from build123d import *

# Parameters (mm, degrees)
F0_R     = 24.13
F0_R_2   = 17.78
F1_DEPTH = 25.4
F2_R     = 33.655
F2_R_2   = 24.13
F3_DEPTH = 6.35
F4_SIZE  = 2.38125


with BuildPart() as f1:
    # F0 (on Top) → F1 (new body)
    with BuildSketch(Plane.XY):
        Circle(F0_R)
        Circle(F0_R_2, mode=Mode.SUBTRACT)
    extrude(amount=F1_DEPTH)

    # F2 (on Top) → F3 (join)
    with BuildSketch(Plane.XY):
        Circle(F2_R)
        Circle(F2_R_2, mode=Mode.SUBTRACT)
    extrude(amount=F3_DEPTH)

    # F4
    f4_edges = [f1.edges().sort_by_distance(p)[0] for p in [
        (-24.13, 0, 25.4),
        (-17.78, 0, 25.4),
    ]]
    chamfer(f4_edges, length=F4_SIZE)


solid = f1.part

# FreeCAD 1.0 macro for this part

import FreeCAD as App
import Part
import Sketcher
Q = App.Units.Quantity


def edges_at(feature, points):
    """Names of the edges that pass closest to the given points."""
    edges = feature.Shape.Edges
    near = lambda p: min(range(len(edges)), key=lambda i: edges[i].distToShape(Part.Vertex(*p))[0])
    return sorted({f"Edge{near(p) + 1}" for p in points})

doc = App.newDocument("Part")
body = doc.addObject("PartDesign::Body", "Body")

sketch1 = body.newObject("Sketcher::SketchObject", "Sketch")
sketch1.AttachmentSupport = (doc.getObject("XY_Plane"), [""])
sketch1.MapMode = "FlatFace"
sketch1.addGeometry([
    Part.Circle(App.Vector(0, 0, 0), App.Vector(0, 0, 1), 24.13),
    Part.Circle(App.Vector(0, 0, 0), App.Vector(0, 0, 1), 17.78),
], False)
sketch1.addConstraint([
    Sketcher.Constraint("Coincident", 0, 3, -1, 1),
    Sketcher.Constraint("Coincident", 1, 3, -1, 1),
    Sketcher.Constraint("Diameter", 0, Q("1.9 in")),
    Sketcher.Constraint("Diameter", 1, Q("1.4 in")),
])
pad1 = body.newObject("PartDesign::Pad", "Pad")
pad1.Profile = sketch1
pad1.Length = Q("1 in")

sketch2 = body.newObject("Sketcher::SketchObject", "Sketch001")
sketch2.AttachmentSupport = (doc.getObject("XY_Plane"), [""])
sketch2.MapMode = "FlatFace"
sketch2.addGeometry([
    Part.Circle(App.Vector(0, 0, 0), App.Vector(0, 0, 1), 33.655),
    Part.Circle(App.Vector(0, 0, 0), App.Vector(0, 0, 1), 24.13),
], False)
sketch2.addConstraint([
    Sketcher.Constraint("Coincident", 0, 3, -1, 1),
    Sketcher.Constraint("Coincident", 1, 3, -1, 1),
    Sketcher.Constraint("Diameter", 1, Q("1.9 in")),
    Sketcher.Constraint("Diameter", 0, Q("2.65 in")),
])
pad2 = body.newObject("PartDesign::Pad", "Pad001")
pad2.Profile = sketch2
pad2.Length = Q("0.25 in")
doc.recompute()

chamfer = body.newObject("PartDesign::Chamfer", "Chamfer")
chamfer.Base = (pad2, edges_at(pad2, [(-24.13, 0, 25.4), (-17.78, 0, 25.4)]))
chamfer.Size = Q("0.09375 in")

doc.recompute()
